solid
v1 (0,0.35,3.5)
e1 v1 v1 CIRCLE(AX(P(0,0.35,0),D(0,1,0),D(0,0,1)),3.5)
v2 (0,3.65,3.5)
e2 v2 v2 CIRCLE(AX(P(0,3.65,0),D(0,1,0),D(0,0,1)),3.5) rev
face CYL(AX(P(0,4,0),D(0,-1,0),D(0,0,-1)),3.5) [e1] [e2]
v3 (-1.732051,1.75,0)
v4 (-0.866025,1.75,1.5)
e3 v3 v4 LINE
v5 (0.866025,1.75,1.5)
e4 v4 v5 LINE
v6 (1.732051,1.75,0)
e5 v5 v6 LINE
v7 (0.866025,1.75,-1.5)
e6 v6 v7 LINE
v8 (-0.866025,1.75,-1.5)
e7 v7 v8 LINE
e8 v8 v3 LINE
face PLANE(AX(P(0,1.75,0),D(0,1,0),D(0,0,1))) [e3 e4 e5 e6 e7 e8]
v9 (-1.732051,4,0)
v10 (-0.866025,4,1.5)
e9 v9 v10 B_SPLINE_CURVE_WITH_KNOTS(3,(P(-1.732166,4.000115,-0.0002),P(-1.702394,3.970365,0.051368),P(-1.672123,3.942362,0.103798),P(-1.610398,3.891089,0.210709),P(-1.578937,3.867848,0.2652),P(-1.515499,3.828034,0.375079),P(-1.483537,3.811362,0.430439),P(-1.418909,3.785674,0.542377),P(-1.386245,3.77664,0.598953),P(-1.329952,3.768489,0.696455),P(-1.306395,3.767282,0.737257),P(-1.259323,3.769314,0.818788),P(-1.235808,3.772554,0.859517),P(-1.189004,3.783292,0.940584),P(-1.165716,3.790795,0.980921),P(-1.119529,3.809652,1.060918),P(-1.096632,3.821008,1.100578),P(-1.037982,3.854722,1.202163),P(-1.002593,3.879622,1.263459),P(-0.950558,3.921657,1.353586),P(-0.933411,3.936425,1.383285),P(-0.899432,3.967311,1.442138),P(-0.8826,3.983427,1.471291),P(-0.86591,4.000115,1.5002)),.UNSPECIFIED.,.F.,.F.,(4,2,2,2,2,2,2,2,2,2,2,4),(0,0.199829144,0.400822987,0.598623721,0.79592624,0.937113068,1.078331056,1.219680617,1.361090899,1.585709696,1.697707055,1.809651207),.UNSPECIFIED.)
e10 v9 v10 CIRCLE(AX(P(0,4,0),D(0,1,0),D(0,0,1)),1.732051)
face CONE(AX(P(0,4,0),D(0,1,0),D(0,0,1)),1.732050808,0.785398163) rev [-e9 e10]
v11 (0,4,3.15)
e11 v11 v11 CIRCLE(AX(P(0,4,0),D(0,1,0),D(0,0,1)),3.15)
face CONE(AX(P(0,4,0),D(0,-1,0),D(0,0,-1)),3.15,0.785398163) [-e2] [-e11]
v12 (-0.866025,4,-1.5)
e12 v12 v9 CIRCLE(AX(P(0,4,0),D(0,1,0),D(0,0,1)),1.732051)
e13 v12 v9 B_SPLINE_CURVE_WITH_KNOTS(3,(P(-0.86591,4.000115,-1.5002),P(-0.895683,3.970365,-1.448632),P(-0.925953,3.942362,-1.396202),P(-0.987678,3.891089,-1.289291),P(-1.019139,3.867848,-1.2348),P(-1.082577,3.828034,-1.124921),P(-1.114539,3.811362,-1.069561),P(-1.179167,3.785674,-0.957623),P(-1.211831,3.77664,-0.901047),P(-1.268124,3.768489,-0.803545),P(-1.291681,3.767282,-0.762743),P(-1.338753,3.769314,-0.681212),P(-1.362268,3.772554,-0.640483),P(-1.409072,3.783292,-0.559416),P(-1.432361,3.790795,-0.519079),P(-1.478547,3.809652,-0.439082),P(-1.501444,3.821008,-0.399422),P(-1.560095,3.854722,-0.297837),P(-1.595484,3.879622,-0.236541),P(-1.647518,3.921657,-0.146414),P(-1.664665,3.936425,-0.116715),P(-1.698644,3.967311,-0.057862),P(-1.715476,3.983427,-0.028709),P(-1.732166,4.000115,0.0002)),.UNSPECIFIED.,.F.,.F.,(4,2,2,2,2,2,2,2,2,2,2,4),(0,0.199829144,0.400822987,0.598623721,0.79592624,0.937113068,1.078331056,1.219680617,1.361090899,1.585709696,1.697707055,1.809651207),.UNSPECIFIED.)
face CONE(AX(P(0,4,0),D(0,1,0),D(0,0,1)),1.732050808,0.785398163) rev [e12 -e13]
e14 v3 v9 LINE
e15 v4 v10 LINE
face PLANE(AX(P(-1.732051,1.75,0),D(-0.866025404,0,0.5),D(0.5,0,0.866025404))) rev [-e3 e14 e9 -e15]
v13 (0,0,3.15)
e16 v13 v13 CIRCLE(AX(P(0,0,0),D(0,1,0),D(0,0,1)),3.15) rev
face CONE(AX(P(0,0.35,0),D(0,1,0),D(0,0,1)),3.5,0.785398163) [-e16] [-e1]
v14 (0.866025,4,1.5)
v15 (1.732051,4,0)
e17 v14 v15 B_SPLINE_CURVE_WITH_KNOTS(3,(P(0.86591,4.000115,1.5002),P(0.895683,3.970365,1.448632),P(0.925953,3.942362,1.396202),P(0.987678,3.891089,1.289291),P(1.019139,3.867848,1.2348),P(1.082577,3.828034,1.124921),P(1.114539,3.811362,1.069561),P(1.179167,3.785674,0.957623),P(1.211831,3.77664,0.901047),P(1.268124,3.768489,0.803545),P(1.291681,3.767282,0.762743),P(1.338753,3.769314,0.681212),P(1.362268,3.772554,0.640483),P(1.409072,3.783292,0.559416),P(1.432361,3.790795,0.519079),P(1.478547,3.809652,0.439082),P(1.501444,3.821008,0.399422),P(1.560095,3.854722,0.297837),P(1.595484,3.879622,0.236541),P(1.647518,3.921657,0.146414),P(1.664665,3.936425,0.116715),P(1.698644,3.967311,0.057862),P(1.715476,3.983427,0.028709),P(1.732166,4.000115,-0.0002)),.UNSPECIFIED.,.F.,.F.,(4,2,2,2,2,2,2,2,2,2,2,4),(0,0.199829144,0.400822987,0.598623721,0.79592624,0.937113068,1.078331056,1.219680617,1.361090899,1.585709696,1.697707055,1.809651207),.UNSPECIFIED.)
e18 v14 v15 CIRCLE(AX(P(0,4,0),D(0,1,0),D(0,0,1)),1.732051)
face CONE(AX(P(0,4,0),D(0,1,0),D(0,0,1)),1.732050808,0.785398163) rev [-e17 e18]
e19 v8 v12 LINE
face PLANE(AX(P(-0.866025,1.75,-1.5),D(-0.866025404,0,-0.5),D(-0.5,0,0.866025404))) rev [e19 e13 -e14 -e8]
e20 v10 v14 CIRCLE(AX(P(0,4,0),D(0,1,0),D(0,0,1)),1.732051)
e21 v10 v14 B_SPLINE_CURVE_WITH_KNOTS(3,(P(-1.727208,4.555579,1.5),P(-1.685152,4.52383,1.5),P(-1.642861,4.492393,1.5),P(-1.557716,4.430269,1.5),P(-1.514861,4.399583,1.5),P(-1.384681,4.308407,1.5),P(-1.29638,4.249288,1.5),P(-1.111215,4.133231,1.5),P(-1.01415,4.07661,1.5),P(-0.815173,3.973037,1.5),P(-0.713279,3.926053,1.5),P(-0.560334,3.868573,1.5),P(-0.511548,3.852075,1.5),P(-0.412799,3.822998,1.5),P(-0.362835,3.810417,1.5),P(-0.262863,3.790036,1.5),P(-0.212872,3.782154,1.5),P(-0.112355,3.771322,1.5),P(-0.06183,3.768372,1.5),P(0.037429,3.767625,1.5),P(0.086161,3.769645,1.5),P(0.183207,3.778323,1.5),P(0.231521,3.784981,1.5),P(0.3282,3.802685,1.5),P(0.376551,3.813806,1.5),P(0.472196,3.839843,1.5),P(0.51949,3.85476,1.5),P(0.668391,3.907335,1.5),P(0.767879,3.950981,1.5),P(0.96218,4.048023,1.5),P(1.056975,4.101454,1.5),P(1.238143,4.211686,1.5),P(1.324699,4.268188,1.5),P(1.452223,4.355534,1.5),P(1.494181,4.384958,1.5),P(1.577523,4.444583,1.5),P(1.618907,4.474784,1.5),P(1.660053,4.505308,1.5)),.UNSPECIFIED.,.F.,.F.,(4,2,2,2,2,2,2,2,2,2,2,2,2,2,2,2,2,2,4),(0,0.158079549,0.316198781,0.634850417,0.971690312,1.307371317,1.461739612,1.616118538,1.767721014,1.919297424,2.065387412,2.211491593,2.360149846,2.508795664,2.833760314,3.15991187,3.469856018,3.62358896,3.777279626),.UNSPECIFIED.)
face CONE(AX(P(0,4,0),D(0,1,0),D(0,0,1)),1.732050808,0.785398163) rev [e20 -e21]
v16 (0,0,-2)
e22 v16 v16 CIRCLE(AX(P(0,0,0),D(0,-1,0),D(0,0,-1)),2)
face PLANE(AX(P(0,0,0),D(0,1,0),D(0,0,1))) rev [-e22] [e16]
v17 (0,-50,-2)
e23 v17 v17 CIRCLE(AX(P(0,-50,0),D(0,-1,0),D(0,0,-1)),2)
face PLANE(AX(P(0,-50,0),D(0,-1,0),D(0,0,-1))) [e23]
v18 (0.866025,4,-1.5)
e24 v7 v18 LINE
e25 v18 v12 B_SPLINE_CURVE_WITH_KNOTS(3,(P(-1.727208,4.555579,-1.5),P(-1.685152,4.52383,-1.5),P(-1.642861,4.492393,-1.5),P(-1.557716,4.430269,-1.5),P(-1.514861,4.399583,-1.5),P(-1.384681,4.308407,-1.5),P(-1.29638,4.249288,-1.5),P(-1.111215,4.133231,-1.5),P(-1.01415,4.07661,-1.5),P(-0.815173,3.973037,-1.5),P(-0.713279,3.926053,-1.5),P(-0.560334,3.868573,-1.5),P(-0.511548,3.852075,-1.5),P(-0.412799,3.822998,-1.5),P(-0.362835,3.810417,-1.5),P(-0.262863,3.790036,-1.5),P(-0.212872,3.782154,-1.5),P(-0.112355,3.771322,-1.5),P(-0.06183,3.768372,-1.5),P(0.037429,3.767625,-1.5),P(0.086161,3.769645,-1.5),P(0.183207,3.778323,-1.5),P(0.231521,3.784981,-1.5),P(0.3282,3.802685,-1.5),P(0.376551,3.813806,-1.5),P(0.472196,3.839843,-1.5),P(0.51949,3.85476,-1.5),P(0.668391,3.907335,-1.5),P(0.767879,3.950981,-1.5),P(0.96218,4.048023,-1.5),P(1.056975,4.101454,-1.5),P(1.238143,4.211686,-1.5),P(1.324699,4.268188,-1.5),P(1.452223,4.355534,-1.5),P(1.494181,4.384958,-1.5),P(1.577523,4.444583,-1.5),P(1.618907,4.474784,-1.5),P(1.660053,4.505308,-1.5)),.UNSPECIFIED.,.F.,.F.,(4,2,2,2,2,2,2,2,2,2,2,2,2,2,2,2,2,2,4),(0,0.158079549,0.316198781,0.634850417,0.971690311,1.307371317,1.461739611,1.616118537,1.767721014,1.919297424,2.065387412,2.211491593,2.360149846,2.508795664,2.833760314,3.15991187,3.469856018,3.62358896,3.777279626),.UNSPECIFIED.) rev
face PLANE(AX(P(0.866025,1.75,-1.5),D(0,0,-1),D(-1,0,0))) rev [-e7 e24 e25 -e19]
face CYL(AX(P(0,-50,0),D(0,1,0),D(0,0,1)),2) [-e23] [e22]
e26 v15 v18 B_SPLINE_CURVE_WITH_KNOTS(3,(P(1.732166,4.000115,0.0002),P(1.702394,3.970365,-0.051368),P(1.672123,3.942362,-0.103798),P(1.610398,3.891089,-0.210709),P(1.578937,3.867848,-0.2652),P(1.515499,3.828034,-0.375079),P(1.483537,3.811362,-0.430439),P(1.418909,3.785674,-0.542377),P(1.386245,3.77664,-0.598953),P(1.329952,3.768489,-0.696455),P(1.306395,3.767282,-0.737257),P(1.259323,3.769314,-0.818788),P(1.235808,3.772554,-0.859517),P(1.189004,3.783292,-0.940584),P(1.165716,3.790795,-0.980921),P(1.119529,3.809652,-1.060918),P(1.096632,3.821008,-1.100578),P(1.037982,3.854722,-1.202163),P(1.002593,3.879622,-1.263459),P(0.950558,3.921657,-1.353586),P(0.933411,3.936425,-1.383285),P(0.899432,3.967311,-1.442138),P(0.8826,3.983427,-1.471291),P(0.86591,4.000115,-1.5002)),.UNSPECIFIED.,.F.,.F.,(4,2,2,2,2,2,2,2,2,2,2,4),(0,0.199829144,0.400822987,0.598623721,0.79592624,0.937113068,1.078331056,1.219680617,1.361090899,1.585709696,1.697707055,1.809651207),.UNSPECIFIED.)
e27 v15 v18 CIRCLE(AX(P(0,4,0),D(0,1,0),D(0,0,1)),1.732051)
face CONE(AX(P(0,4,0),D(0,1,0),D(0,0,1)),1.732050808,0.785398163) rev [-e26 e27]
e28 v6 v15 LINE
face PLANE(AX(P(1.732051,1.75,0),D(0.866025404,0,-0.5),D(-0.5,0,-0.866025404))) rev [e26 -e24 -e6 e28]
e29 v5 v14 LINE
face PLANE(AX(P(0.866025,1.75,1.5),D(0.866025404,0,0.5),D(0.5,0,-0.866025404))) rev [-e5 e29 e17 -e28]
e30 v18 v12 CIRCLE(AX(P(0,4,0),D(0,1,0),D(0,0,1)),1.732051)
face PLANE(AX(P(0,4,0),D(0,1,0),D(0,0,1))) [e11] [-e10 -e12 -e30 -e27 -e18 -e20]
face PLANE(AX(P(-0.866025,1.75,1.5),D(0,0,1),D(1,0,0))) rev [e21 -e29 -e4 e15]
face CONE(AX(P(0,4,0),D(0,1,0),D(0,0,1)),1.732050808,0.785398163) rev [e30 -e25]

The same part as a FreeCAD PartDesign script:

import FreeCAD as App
import Part
import Sketcher
from FreeCAD import Vector
Q = App.Units.Quantity


def edges_at(feature, points):
    """Names of the edges that pass closest to the given points."""
    edges = feature.Shape.Edges
    near = lambda p: min(range(len(edges)), key=lambda i: edges[i].distToShape(Part.Vertex(*p))[0])
    return sorted({f"Edge{near(p) + 1}" for p in points})


def add_polygon(sketch, points):
    """Adds a closed chain of lines whose ends are joined by coincident constraints."""
    first, n = sketch.GeometryCount, len(points)
    for a, b in zip(points, points[1:] + points[:1]):
        sketch.addGeometry(Part.LineSegment(App.Vector(*a, 0), App.Vector(*b, 0)), False)
    for i in range(n):
        sketch.addConstraint(Sketcher.Constraint("Coincident", first + i, 2, first + (i + 1) % n, 1))

doc = App.newDocument("Part")
body = doc.addObject("PartDesign::Body", "Body")

sketch1 = body.newObject("Sketcher::SketchObject", "Sketch")
sketch1.AttachmentSupport = (doc.getObject("XZ_Plane"), [""])
sketch1.MapMode = "FlatFace"
sketch1.addGeometry(Part.Circle(Vector(0, 0, 0), Vector(0, 0, 1), 3.5), False)
sketch1.addConstraint([
    Sketcher.Constraint("Coincident", 0, 3, -1, 1),
    Sketcher.Constraint("Diameter", 0, Q("7 mm")),
])
pad1 = body.newObject("PartDesign::Pad", "Pad")
pad1.Profile = sketch1
pad1.Length = 4
pad1.Reversed = True

sketch2 = body.newObject("Sketcher::SketchObject", "Sketch001")
sketch2.AttachmentSupport = (doc.getObject("XZ_Plane"), [""])
sketch2.MapMode = "FlatFace"
sketch2.AttachmentOffset = App.Placement(Vector(0, 0, -4), App.Rotation())
add_polygon(sketch2, [(0.9, -1.5), (-0.9, -1.5), (-1.7, 0), (-0.9, 1.5), (0.9, 1.5), (1.7, 0)])
sketch2.addConstraint([
    Sketcher.Constraint("Horizontal", 0),
    Sketcher.Constraint("Horizontal", 3),
    Sketcher.Constraint("Symmetric", 0, 2, 3, 2, -1, 1),
    Sketcher.Constraint("Symmetric", 1, 2, 4, 2, -1, 1),
    Sketcher.Constraint("PointOnObject", 1, 2, -1),
    Sketcher.Constraint("Parallel", 2, 5),
    Sketcher.Constraint("Vertical", 0, 2, 2, 2),
    Sketcher.Constraint("Angle", 1, Q("120 deg")),
    Sketcher.Constraint("DistanceY", 0, 2, 2, 2, Q("3 mm")),
    Sketcher.Constraint("DistanceX", 0, 2, 0, 1, Q("1.732051 mm")),
])
pocket1 = body.newObject("PartDesign::Pocket", "Pocket")
pocket1.Profile = sketch2
pocket1.Length = 2.25
pocket1.Reversed = True

sketch3 = body.newObject("Sketcher::SketchObject", "Sketch002")
sketch3.AttachmentSupport = (doc.getObject("YZ_Plane"), [""])
sketch3.MapMode = "FlatFace"
add_polygon(sketch3, [(4, 0), (4, 1.7), (2.3, 0)])
sketch3.addConstraint([
    Sketcher.Constraint("Vertical", 0),
    Sketcher.Constraint("Horizontal", 2),
    Sketcher.Constraint("PointOnObject", 1, 2, -1),
    Sketcher.Constraint("Equal", 2, 0),
    Sketcher.Constraint("DistanceX", -1, 1, 0, 2, Q("4 mm")),
    Sketcher.Constraint("DistanceX", 2, 1, 2, 2, Q("1.732051 mm")),
])
groove = body.newObject("PartDesign::Groove", "Groove")
groove.Profile = sketch3
groove.ReferenceAxis = (sketch3, ["H_Axis"])
groove.Angle = 360
doc.recompute()

chamfer = body.newObject("PartDesign::Chamfer", "Chamfer")
chamfer.Base = (groove, edges_at(groove, [(0, 0, -3.5), (0, 4, -3.5)]))
chamfer.Size = 0.35

sketch4 = body.newObject("Sketcher::SketchObject", "Sketch003")
sketch4.AttachmentSupport = (doc.getObject("XZ_Plane"), [""])
sketch4.MapMode = "FlatFace"
sketch4.addGeometry(Part.Circle(Vector(0, 0, 0), Vector(0, 0, 1), 2), False)
sketch4.addConstraint([
    Sketcher.Constraint("Coincident", 0, 3, -1, 1),
    Sketcher.Constraint("Diameter", 0, Q("4 mm")),
])
pad2 = body.newObject("PartDesign::Pad", "Pad001")
pad2.Profile = sketch4
pad2.Length = 50

doc.recompute()
